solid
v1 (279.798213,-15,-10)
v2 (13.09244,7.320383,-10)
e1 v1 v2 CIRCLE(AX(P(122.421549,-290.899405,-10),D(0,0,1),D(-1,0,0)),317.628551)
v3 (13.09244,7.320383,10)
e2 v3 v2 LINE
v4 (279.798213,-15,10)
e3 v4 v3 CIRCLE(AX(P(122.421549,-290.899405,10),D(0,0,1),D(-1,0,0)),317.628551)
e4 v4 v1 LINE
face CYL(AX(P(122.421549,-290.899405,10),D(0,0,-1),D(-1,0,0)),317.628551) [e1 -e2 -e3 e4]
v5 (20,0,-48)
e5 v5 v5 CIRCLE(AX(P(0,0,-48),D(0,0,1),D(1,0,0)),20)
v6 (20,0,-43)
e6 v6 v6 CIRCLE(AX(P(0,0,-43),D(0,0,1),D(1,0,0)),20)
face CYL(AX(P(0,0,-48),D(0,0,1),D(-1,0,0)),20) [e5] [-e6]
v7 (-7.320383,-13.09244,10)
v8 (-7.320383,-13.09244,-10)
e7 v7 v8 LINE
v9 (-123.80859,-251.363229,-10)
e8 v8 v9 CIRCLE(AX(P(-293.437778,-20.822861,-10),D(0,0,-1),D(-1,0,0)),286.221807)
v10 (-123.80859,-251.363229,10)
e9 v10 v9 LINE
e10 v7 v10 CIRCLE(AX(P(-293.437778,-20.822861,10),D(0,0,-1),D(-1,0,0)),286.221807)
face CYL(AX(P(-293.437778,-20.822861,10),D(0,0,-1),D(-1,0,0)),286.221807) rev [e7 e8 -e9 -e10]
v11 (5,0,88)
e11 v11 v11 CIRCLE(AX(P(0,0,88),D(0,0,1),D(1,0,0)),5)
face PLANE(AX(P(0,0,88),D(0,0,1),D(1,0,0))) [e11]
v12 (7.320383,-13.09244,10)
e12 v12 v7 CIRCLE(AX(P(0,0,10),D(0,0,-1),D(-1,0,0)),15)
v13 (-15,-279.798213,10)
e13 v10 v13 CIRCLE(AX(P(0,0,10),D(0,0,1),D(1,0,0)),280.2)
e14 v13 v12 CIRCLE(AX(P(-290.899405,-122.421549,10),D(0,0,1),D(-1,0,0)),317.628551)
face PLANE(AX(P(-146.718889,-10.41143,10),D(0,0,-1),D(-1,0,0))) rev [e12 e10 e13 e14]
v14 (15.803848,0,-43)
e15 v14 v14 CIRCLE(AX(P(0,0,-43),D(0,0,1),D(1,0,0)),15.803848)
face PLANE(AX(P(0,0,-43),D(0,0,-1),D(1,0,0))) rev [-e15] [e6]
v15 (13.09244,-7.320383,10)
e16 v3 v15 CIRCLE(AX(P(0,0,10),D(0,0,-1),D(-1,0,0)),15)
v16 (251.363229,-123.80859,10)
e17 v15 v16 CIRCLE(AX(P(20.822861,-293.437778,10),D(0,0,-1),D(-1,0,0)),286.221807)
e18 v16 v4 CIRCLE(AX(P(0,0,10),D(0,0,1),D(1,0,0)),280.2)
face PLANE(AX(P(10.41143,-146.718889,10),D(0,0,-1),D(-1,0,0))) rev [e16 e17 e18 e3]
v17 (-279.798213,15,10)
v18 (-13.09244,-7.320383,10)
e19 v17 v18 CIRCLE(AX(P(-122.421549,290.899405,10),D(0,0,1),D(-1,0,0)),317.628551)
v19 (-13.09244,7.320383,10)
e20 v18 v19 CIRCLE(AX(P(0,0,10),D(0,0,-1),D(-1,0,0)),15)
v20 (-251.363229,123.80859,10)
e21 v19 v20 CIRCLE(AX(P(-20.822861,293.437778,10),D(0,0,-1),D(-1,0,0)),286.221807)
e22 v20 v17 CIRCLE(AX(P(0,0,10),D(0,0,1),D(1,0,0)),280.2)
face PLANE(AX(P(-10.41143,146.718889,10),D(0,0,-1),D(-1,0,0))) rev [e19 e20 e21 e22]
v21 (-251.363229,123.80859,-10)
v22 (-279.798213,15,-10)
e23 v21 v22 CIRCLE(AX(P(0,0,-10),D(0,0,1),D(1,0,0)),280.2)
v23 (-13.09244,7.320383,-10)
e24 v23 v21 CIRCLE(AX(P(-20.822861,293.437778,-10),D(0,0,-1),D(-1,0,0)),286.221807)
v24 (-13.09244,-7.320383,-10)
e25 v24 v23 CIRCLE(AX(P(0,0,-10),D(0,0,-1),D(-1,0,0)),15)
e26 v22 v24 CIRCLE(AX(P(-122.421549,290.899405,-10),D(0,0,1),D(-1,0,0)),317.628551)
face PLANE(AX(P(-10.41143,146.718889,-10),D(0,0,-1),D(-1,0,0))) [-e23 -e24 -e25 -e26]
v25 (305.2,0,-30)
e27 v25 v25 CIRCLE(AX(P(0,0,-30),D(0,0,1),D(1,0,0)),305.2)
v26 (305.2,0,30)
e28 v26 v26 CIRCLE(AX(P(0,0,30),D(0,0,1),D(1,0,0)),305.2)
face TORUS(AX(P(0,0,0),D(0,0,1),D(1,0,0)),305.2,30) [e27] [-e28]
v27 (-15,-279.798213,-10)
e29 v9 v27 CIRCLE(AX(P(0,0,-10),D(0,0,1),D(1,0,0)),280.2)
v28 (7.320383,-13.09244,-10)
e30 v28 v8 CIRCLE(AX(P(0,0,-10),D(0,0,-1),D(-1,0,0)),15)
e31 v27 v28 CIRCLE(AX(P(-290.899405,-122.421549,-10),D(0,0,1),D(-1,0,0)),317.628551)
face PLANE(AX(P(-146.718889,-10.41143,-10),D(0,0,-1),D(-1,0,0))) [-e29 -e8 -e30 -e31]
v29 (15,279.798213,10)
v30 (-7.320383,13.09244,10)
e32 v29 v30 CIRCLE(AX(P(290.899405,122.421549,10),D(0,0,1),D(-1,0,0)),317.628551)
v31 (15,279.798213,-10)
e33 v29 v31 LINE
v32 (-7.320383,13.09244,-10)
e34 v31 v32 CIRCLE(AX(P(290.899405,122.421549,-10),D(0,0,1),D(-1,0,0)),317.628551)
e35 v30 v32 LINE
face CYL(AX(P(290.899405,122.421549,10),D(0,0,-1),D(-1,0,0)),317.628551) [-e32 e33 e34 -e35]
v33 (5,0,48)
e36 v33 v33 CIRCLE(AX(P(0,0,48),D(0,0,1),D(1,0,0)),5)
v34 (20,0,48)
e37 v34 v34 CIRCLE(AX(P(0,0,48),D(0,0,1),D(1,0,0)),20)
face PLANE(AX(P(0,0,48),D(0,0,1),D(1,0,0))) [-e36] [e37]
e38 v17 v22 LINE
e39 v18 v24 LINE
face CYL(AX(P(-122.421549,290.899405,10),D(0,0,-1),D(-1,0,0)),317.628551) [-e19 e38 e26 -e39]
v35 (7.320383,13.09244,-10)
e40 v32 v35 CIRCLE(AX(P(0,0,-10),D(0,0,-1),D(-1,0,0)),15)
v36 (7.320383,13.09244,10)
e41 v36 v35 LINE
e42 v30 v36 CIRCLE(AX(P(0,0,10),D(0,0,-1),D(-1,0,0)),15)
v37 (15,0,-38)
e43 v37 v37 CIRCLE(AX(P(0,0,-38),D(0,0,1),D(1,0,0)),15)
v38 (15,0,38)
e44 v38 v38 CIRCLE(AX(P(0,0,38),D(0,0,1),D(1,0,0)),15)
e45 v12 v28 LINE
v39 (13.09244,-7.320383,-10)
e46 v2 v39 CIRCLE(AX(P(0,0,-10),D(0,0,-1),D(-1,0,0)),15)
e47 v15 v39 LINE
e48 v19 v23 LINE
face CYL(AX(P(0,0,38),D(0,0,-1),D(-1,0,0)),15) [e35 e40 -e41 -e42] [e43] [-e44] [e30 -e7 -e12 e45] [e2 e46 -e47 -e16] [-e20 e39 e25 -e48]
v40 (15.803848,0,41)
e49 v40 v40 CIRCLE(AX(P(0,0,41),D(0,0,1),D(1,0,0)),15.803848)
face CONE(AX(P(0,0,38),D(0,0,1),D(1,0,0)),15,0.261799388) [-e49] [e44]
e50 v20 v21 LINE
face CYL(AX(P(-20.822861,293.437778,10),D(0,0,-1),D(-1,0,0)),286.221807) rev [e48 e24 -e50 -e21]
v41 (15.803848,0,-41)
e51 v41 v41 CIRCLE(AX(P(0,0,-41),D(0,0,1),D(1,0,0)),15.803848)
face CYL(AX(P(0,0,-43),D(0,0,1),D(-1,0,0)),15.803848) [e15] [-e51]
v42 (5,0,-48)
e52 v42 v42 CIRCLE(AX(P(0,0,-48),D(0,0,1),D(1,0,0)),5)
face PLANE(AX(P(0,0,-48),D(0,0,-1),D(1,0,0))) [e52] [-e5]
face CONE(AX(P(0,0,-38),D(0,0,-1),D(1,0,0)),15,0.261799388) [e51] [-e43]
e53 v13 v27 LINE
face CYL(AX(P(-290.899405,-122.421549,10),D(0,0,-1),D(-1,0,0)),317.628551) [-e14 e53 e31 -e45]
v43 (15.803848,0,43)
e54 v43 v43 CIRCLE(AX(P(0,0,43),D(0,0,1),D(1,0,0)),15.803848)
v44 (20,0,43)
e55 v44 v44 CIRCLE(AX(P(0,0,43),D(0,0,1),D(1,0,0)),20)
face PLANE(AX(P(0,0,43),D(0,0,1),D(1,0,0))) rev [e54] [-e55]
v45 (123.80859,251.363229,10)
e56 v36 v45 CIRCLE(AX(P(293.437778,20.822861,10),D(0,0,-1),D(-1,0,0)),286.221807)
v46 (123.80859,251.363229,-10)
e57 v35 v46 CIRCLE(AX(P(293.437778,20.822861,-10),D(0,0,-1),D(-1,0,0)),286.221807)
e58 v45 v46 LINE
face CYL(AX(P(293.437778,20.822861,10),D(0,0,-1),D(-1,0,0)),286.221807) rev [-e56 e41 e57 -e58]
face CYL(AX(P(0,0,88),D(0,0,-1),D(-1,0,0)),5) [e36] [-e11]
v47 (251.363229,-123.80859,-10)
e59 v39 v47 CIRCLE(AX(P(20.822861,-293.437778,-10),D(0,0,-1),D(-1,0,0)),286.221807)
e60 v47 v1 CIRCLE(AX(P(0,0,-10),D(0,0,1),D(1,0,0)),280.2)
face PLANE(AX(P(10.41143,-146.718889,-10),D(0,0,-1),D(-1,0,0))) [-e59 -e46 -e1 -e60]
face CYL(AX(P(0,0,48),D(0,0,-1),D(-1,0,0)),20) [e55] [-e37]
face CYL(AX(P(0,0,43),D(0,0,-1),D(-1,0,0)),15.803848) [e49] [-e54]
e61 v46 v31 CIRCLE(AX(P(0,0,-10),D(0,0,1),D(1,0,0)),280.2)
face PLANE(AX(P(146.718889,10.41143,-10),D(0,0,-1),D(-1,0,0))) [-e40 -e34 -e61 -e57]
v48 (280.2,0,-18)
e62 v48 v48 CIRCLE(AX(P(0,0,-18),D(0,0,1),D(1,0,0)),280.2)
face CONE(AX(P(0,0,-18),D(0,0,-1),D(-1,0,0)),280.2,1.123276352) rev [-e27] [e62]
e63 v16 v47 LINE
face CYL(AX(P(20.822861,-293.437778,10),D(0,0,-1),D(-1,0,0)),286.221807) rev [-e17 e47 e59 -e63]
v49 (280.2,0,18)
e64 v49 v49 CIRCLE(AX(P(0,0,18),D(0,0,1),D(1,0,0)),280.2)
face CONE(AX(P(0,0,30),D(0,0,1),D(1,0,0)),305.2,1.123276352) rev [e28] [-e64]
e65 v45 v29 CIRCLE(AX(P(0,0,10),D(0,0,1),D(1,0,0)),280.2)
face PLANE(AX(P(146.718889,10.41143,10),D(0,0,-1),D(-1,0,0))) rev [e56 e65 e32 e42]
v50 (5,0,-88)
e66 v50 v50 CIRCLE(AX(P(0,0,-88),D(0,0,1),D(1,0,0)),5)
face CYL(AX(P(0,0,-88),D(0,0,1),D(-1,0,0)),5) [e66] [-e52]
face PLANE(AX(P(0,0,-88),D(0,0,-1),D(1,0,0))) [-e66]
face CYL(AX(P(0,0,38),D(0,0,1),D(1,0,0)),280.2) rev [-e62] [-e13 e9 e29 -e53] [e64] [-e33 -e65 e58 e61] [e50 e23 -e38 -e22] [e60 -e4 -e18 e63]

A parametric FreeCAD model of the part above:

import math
import FreeCAD as App
import Part
import Sketcher
Q = App.Units.Quantity


def faces_at(feature, points):
    """Names of the faces that lie closest to the given points."""
    faces = feature.Shape.Faces
    near = lambda p: min(range(len(faces)), key=lambda i: faces[i].distToShape(Part.Vertex(*p))[0])
    return sorted({f"Face{near(p) + 1}" for p in points})


def add_polygon(sketch, points):
    """Adds a closed chain of lines whose ends are joined by coincident constraints."""
    first, n = sketch.GeometryCount, len(points)
    for a, b in zip(points, points[1:] + points[:1]):
        sketch.addGeometry(Part.LineSegment(App.Vector(*a, 0), App.Vector(*b, 0)), False)
    for i in range(n):
        sketch.addConstraint(Sketcher.Constraint("Coincident", first + i, 2, first + (i + 1) % n, 1))

doc = App.newDocument("Part")
body = doc.addObject("PartDesign::Body", "Body")

# Sketch on XY plane
sketch1 = body.newObject("Sketcher::SketchObject", "Sketch")
sketch1.AttachmentSupport = (doc.getObject("XY_Plane"), [""])
sketch1.MapMode = "FlatFace"
sketch1.addGeometry(Part.Circle(App.Vector(0, 0, 0), App.Vector(0, 0, 1), 15), False)
sketch1.addConstraint(Sketcher.Constraint("Coincident", 0, 3, -1, 1))
sketch1.addConstraint(Sketcher.Constraint("Diameter", 0, Q("30 mm")))
pad1 = body.newObject("PartDesign::Pad", "Pad")
pad1.Profile = sketch1
pad1.Length = 38
body2 = doc.addObject("PartDesign::Body", "Body001")

# Sketch on XY plane
sketch2 = body2.newObject("Sketcher::SketchObject", "Sketch001")
sketch2.AttachmentSupport = (doc.getObject("XY_Plane001"), [""])
sketch2.MapMode = "FlatFace"
sketch2.AttachmentOffset = App.Placement(App.Vector(0, 0, 38), App.Rotation())
sketch2.addGeometry(Part.Circle(App.Vector(0, 0, 0), App.Vector(0, 0, 1), 15), False)
sketch2.addConstraint(Sketcher.Constraint("Coincident", 0, 3, -1, 1))
sketch2.addConstraint(Sketcher.Constraint("Diameter", 0, Q("30 mm")))
pad2 = body2.newObject("PartDesign::Pad", "Pad001")
pad2.Profile = sketch2
pad2.Length = 3
doc.recompute()

datumplane = body2.newObject("PartDesign::Plane", "DatumPlane")
datumplane.AttachmentSupport = (doc.getObject("XY_Plane001"), [""])
datumplane.MapMode = "FlatFace"
datumplane.AttachmentOffset = App.Placement(App.Vector(0, 0, 38), App.Rotation())
draft = body2.newObject("PartDesign::Draft", "Draft")
draft.Base = (pad2, faces_at(pad2, [(-15, 0, 39.5)]))
draft.NeutralPlane = (datumplane, [""])
draft.Angle = 15
draft.Reversed = True
doc.recompute()

boolean = body.newObject("PartDesign::Boolean", "Boolean")
boolean.Type = "Fuse"
boolean.addObjects([body2])

# Sketch on XY plane
sketch3 = body.newObject("Sketcher::SketchObject", "Sketch002")
sketch3.AttachmentSupport = (doc.getObject("XY_Plane"), [""])
sketch3.MapMode = "FlatFace"
sketch3.AttachmentOffset = App.Placement(App.Vector(0, 0, 41), App.Rotation())
sketch3.addGeometry(Part.Circle(App.Vector(0, 0, 0), App.Vector(0, 0, 1), 15.803848), False)
sketch3.addConstraint(Sketcher.Constraint("Coincident", 0, 3, -1, 1))
sketch3.addConstraint(Sketcher.Constraint("Diameter", 0, Q("31.607695 mm")))
pad3 = body.newObject("PartDesign::Pad", "Pad002")
pad3.Profile = sketch3
pad3.Length = 2

# Sketch on XY plane
sketch4 = body.newObject("Sketcher::SketchObject", "Sketch003")
sketch4.AttachmentSupport = (doc.getObject("XY_Plane"), [""])
sketch4.MapMode = "FlatFace"
sketch4.AttachmentOffset = App.Placement(App.Vector(0, 0, 43), App.Rotation())
sketch4.addGeometry(Part.Circle(App.Vector(0, 0, 0), App.Vector(0, 0, 1), 20), False)
sketch4.addConstraint(Sketcher.Constraint("Coincident", 0, 3, -1, 1))
sketch4.addConstraint(Sketcher.Constraint("Diameter", 0, Q("40 mm")))
pad4 = body.newObject("PartDesign::Pad", "Pad003")
pad4.Profile = sketch4
pad4.Length = 5

# Sketch on XY plane
sketch5 = body.newObject("Sketcher::SketchObject", "Sketch004")
sketch5.AttachmentSupport = (doc.getObject("XY_Plane"), [""])
sketch5.MapMode = "FlatFace"
sketch5.AttachmentOffset = App.Placement(App.Vector(0, 0, 48), App.Rotation())
sketch5.addGeometry(Part.Circle(App.Vector(0, 0, 0), App.Vector(0, 0, 1), 5), False)
sketch5.addConstraint(Sketcher.Constraint("Coincident", 0, 3, -1, 1))
sketch5.addConstraint(Sketcher.Constraint("Diameter", 0, Q("10 mm")))
pad5 = body.newObject("PartDesign::Pad", "Pad004")
pad5.Profile = sketch5
pad5.Length = 40
body3 = doc.addObject("PartDesign::Body", "Body002")
doc.recompute()

body3.BaseFeature = body
doc.recompute()

mirroring = doc.addObject("Part::Mirroring", "Mirroring")
mirroring.Source = body
mirroring.Base = App.Vector(0, 0, 0)
mirroring.Normal = App.Vector(0, 0, 1)
body4 = doc.addObject("PartDesign::Body", "Body003")
body4.BaseFeature = mirroring
boolean2 = body3.newObject("PartDesign::Boolean", "Boolean001")
boolean2.Type = "Fuse"
boolean2.addObjects([body4])
doc.recompute()
body5 = doc.addObject("PartDesign::Body", "Body004")

# Sketch on YZ plane
sketch6 = body5.newObject("Sketcher::SketchObject", "Sketch005")
sketch6.AttachmentSupport = (doc.getObject("YZ_Plane004"), [""])
sketch6.MapMode = "FlatFace"
add_polygon(sketch6, [(305.2, -30), (305.2, 30), (280.2, 18), (280.2, -18)])  # lines 0-3
sketch6.addConstraint(Sketcher.Constraint("Vertical", 0))
sketch6.addConstraint(Sketcher.Constraint("Vertical", 2))
sketch6.addConstraint(Sketcher.Constraint("Equal", 1, 3))
sketch6.addConstraint(Sketcher.Constraint("DistanceY", 0, 1, 0, 2, Q("60 mm")))
sketch6.addConstraint(Sketcher.Constraint("DistanceY", 2, 2, 2, 1, Q("36 mm")))
sketch6.addConstraint(Sketcher.Constraint("DistanceY", -1, 1, 0, 2, Q("30 mm")))
sketch6.addConstraint(Sketcher.Constraint("DistanceX", 1, 2, 0, 2, Q("25 mm")))
sketch6.addConstraint(Sketcher.Constraint("DistanceX", -1, 1, 0, 2, Q("305.2 mm")))
revolution = body5.newObject("PartDesign::Revolution", "Revolution")
revolution.Profile = sketch6
revolution.ReferenceAxis = (sketch6, ["V_Axis"])
revolution.Angle = 360
body3.AllowCompound = True
doc.recompute()

boolean3 = body3.newObject("PartDesign::Boolean", "Boolean002")
boolean3.Type = "Fuse"
boolean3.addObjects([body5])

# Sketch on XY plane
sketch7 = body3.newObject("Sketcher::SketchObject", "Sketch006")
sketch7.AttachmentSupport = (doc.getObject("XY_Plane002"), [""])
sketch7.MapMode = "FlatFace"
sketch7.addGeometry(Part.ArcOfCircle(Part.Circle(App.Vector(290.899405, 122.421549, 0), App.Vector(0, 0, 1), 317.628551), math.radians(150.298994), math.radians(200.13323)), False)
sketch7.addGeometry(Part.ArcOfCircle(Part.Circle(App.Vector(0, 0, 0), App.Vector(0, 0, 1), 15), math.radians(60.789111), math.radians(119.210889)), False)
sketch7.addGeometry(Part.ArcOfCircle(Part.Circle(App.Vector(293.437778, 20.822861, 0), App.Vector(0, 0, 1), 286.221807), math.radians(126.345245), math.radians(181.547661)), False)
sketch7.addGeometry(Part.ArcOfCircle(Part.Circle(App.Vector(0, 0, 0), App.Vector(0, 0, 1), 280.2), math.radians(63.777516), math.radians(86.931307)), False)
sketch7.addGeometry(Part.ArcOfCircle(Part.Circle(App.Vector(122.421549, -290.899405, 0), App.Vector(0, 0, 1), 317.628551), math.radians(60.298994), math.radians(110.13323)), False)
sketch7.addGeometry(Part.ArcOfCircle(Part.Circle(App.Vector(0, 0, 0), App.Vector(0, 0, 1), 15), math.radians(-29.210889), math.radians(29.210889)), False)
sketch7.addGeometry(Part.ArcOfCircle(Part.Circle(App.Vector(20.822861, -293.437778, 0), App.Vector(0, 0, 1), 286.221807), math.radians(36.345245), math.radians(91.547661)), False)
sketch7.addGeometry(Part.ArcOfCircle(Part.Circle(App.Vector(0, 0, 0), App.Vector(0, 0, 1), 280.2), math.radians(-26.222484), math.radians(-3.068693)), False)
sketch7.addGeometry(Part.ArcOfCircle(Part.Circle(App.Vector(-290.899405, -122.421549, 0), App.Vector(0, 0, 1), 317.628551), math.radians(-29.701006), math.radians(20.13323)), False)
sketch7.addGeometry(Part.ArcOfCircle(Part.Circle(App.Vector(0, 0, 0), App.Vector(0, 0, 1), 15), math.radians(-119.210889), math.radians(-60.789111)), False)
sketch7.addGeometry(Part.ArcOfCircle(Part.Circle(App.Vector(-293.437778, -20.822861, 0), App.Vector(0, 0, 1), 286.221807), math.radians(-53.654755), math.radians(1.547661)), False)
sketch7.addGeometry(Part.ArcOfCircle(Part.Circle(App.Vector(0, 0, 0), App.Vector(0, 0, 1), 280.2), math.radians(-116.222484), math.radians(-93.068693)), False)
sketch7.addGeometry(Part.ArcOfCircle(Part.Circle(App.Vector(-122.421549, 290.899405, 0), App.Vector(0, 0, 1), 317.628551), math.radians(-119.701006), math.radians(-69.86677)), False)
sketch7.addGeometry(Part.ArcOfCircle(Part.Circle(App.Vector(0, 0, 0), App.Vector(0, 0, 1), 15), math.radians(150.789111), math.radians(209.210889)), False)
sketch7.addGeometry(Part.ArcOfCircle(Part.Circle(App.Vector(-20.822861, 293.437778, 0), App.Vector(0, 0, 1), 286.221807), math.radians(-143.654755), math.radians(-88.452339)), False)
sketch7.addGeometry(Part.ArcOfCircle(Part.Circle(App.Vector(0, 0, 0), App.Vector(0, 0, 1), 280.2), math.radians(153.777516), math.radians(176.931307)), False)
sketch7.addConstraint(Sketcher.Constraint("Coincident", 0, 2, 1, 2))
sketch7.addConstraint(Sketcher.Constraint("Coincident", 1, 1, 2, 2))
sketch7.addConstraint(Sketcher.Constraint("Coincident", 2, 1, 3, 1))
sketch7.addConstraint(Sketcher.Constraint("Coincident", 3, 2, 0, 1))
sketch7.addConstraint(Sketcher.Constraint("Coincident", 4, 2, 5, 2))
sketch7.addConstraint(Sketcher.Constraint("Coincident", 5, 1, 6, 2))
sketch7.addConstraint(Sketcher.Constraint("Coincident", 6, 1, 7, 1))
sketch7.addConstraint(Sketcher.Constraint("Coincident", 7, 2, 4, 1))
sketch7.addConstraint(Sketcher.Constraint("Coincident", 8, 2, 9, 2))
sketch7.addConstraint(Sketcher.Constraint("Coincident", 9, 1, 10, 2))
sketch7.addConstraint(Sketcher.Constraint("Coincident", 10, 1, 11, 1))
sketch7.addConstraint(Sketcher.Constraint("Coincident", 11, 2, 8, 1))
sketch7.addConstraint(Sketcher.Constraint("Coincident", 12, 2, 13, 2))
sketch7.addConstraint(Sketcher.Constraint("Coincident", 13, 1, 14, 2))
sketch7.addConstraint(Sketcher.Constraint("Coincident", 14, 1, 15, 1))
sketch7.addConstraint(Sketcher.Constraint("Coincident", 15, 2, 12, 1))
sketch7.addConstraint(Sketcher.Constraint("Coincident", 1, 3, -1, 1))
sketch7.addConstraint(Sketcher.Constraint("Coincident", 3, 3, -1, 1))
sketch7.addConstraint(Sketcher.Constraint("Coincident", 5, 3, -1, 1))
sketch7.addConstraint(Sketcher.Constraint("Coincident", 7, 3, -1, 1))
sketch7.addConstraint(Sketcher.Constraint("Coincident", 9, 3, -1, 1))
sketch7.addConstraint(Sketcher.Constraint("Coincident", 11, 3, -1, 1))
sketch7.addConstraint(Sketcher.Constraint("Coincident", 13, 3, -1, 1))
sketch7.addConstraint(Sketcher.Constraint("Coincident", 15, 3, -1, 1))
sketch7.addConstraint(Sketcher.Constraint("Equal", 0, 4))
sketch7.addConstraint(Sketcher.Constraint("Equal", 1, 5))
sketch7.addConstraint(Sketcher.Constraint("Equal", 2, 6))
sketch7.addConstraint(Sketcher.Constraint("Equal", 3, 7))
sketch7.addConstraint(Sketcher.Constraint("Equal", 4, 8))
sketch7.addConstraint(Sketcher.Constraint("Equal", 5, 9))
sketch7.addConstraint(Sketcher.Constraint("Equal", 6, 10))
sketch7.addConstraint(Sketcher.Constraint("Equal", 7, 11))
sketch7.addConstraint(Sketcher.Constraint("Equal", 8, 12))
sketch7.addConstraint(Sketcher.Constraint("Equal", 9, 13))
sketch7.addConstraint(Sketcher.Constraint("Equal", 10, 14))
sketch7.addConstraint(Sketcher.Constraint("Equal", 11, 15))
sketch7.addConstraint(Sketcher.Constraint("Symmetric", 0, 3, 8, 3, -1, 1))
sketch7.addConstraint(Sketcher.Constraint("Symmetric", 2, 3, 10, 3, -1, 1))
sketch7.addConstraint(Sketcher.Constraint("Symmetric", 4, 3, 12, 3, -1, 1))
sketch7.addConstraint(Sketcher.Constraint("Symmetric", 6, 3, 14, 3, -1, 1))
sketch7.addConstraint(Sketcher.Constraint("Horizontal", 0, 2, 1, 1))
sketch7.addConstraint(Sketcher.Constraint("Horizontal", 5, 1, 12, 2))
sketch7.addConstraint(Sketcher.Constraint("Radius", 1, Q("15 mm")))
sketch7.addConstraint(Sketcher.Constraint("Radius", 3, Q("280.2 mm")))
sketch7.addConstraint(Sketcher.Constraint("DistanceX", -1, 1, 3, 2, Q("15 mm")))
sketch7.addConstraint(Sketcher.Constraint("DistanceY", 7, 2, -1, 1, Q("15 mm")))
sketch7.addConstraint(Sketcher.Constraint("Radius", 0, Q("317.628551 mm")))
sketch7.addConstraint(Sketcher.Constraint("Radius", 2, Q("286.221807 mm")))
sketch7.addConstraint(Sketcher.Constraint("DistanceY", -1, 1, 0, 3, Q("122.421549 mm")))
sketch7.addConstraint(Sketcher.Constraint("DistanceY", -1, 1, 2, 3, Q("20.822861 mm")))
sketch7.addConstraint(Sketcher.Constraint("DistanceX", -1, 1, 4, 3, Q("122.421549 mm")))
sketch7.addConstraint(Sketcher.Constraint("DistanceX", -1, 1, 6, 3, Q("20.822861 mm")))
pad6 = body3.newObject("PartDesign::Pad", "Pad005")
pad6.Profile = sketch7
pad6.Length = 20
pad6.Midplane = True

# Sketch on XZ plane
sketch8 = body3.newObject("Sketcher::SketchObject", "Sketch007")
sketch8.AttachmentSupport = (doc.getObject("XZ_Plane002"), [""])
sketch8.MapMode = "FlatFace"
sketch8.addGeometry(Part.LineSegment(App.Vector(305.2, -30, 0), App.Vector(305.2, 30, 0)), False)
sketch8.addGeometry(Part.ArcOfCircle(Part.Circle(App.Vector(305.2, 0, 0), App.Vector(0, 0, 1), 30), math.radians(-90), math.radians(90)), False)
sketch8.addConstraint(Sketcher.Constraint("Coincident", 0, 1, 1, 1))
sketch8.addConstraint(Sketcher.Constraint("Coincident", 1, 2, 0, 2))
sketch8.addConstraint(Sketcher.Constraint("Vertical", 0))
sketch8.addConstraint(Sketcher.Constraint("PointOnObject", 1, 3, -1))
sketch8.addConstraint(Sketcher.Constraint("Vertical", 1, 3, 0, 1))
sketch8.addConstraint(Sketcher.Constraint("Radius", 1, Q("30 mm")))
sketch8.addConstraint(Sketcher.Constraint("DistanceX", -1, 1, 1, 3, Q("305.2 mm")))
revolution2 = body3.newObject("PartDesign::Revolution", "Revolution001")
revolution2.Profile = sketch8
revolution2.ReferenceAxis = (sketch8, ["V_Axis"])
revolution2.Angle = 360
mirroring.Visibility = False

doc.recompute()
